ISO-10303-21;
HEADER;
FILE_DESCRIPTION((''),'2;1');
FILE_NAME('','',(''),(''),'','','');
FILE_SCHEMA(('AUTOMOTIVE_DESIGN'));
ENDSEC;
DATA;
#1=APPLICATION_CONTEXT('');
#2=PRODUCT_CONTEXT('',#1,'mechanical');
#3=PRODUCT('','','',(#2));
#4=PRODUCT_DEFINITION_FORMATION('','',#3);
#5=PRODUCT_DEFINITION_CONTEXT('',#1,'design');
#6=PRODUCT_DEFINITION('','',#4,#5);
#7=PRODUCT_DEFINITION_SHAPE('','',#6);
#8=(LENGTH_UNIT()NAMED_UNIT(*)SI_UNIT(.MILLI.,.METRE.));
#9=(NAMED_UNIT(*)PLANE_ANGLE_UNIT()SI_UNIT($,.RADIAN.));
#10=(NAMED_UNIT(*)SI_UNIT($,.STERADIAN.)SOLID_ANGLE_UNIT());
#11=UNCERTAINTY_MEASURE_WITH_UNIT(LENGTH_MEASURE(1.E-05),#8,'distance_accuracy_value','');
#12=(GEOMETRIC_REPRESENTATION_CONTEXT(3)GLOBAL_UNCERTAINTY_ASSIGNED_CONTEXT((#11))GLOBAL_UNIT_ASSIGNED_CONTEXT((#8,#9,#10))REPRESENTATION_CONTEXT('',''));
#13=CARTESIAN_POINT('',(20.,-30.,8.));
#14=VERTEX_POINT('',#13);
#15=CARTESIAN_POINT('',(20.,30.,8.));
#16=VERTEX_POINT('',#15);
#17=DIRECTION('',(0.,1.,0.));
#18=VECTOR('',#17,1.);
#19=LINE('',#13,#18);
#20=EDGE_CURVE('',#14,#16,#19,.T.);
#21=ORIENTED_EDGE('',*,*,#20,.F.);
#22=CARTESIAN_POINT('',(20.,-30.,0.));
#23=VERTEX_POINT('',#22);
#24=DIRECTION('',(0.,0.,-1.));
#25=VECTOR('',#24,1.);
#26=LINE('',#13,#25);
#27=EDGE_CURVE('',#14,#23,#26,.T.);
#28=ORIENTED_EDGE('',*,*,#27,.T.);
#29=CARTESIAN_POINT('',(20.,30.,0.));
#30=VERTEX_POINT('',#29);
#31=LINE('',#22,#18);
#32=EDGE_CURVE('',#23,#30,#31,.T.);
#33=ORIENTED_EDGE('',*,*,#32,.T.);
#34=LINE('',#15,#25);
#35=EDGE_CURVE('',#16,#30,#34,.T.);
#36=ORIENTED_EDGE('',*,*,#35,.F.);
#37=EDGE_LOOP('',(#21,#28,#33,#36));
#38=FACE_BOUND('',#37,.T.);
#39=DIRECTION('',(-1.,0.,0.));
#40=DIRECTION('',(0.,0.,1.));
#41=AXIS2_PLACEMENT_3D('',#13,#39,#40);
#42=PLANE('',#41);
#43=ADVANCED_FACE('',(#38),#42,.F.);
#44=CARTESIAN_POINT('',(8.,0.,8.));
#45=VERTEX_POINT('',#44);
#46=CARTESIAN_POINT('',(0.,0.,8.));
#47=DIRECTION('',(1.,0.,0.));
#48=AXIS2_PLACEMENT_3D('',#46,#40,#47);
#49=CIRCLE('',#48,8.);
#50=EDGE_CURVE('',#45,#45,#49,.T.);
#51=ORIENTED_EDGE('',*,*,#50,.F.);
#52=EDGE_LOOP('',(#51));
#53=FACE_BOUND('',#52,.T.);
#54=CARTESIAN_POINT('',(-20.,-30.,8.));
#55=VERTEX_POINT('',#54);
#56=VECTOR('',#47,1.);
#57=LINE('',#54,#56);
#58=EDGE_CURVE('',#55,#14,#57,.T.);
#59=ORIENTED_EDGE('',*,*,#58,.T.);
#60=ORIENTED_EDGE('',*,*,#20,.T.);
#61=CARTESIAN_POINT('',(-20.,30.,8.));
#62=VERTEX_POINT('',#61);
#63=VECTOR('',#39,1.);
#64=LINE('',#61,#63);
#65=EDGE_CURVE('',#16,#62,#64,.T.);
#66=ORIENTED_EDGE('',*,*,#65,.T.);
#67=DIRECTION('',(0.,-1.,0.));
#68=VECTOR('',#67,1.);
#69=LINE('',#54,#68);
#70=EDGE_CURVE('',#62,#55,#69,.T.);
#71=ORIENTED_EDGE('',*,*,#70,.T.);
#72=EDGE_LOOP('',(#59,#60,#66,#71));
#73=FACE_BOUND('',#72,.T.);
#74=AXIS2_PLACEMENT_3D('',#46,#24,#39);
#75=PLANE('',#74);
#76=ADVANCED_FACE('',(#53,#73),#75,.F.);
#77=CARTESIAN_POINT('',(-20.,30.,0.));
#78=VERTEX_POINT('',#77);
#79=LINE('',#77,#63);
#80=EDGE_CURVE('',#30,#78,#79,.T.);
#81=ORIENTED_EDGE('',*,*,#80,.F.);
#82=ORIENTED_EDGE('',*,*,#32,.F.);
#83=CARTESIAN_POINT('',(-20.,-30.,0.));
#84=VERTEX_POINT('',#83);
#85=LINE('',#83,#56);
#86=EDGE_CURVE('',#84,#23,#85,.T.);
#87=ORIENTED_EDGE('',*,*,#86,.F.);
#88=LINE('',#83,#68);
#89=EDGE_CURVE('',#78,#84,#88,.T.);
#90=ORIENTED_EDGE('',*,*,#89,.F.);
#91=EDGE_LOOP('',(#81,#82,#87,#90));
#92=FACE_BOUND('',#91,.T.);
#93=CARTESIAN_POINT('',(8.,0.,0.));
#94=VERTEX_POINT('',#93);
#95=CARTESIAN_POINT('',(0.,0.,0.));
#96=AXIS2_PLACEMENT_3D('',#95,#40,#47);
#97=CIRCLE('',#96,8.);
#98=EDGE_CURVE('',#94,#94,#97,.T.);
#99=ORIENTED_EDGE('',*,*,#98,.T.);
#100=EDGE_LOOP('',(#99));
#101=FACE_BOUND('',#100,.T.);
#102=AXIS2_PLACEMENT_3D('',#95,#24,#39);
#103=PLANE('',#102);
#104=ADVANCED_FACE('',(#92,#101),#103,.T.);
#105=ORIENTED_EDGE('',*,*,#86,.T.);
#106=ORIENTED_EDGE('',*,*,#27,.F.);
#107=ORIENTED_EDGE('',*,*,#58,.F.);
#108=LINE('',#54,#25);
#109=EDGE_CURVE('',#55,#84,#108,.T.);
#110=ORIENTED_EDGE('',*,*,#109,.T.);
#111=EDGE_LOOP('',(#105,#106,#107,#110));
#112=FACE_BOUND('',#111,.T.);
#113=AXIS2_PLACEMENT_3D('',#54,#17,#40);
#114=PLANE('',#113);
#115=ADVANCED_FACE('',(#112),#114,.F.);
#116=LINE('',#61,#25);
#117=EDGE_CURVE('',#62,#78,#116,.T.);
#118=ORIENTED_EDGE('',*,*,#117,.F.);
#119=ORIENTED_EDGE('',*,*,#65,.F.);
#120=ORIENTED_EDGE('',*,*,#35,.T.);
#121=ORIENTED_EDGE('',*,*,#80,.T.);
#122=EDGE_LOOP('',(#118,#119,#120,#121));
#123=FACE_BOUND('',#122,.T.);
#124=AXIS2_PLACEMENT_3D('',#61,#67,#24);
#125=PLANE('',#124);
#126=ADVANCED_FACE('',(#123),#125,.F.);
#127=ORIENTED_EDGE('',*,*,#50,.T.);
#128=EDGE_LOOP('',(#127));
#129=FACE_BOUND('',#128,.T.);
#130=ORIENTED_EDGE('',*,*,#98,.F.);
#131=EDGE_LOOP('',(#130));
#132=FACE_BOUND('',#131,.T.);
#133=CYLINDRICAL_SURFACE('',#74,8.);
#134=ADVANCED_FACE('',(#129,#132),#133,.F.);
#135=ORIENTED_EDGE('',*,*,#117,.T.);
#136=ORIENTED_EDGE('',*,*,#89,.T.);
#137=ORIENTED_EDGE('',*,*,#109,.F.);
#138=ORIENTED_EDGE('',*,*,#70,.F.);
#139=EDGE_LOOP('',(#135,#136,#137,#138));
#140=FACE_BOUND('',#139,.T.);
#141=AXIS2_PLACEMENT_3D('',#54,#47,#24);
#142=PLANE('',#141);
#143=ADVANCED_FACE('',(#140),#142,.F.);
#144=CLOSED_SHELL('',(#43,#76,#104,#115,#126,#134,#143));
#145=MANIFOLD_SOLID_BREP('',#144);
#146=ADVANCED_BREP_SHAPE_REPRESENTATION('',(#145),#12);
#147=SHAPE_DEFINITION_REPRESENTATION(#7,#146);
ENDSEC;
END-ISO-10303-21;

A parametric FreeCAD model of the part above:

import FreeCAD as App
import Part
import Sketcher
from FreeCAD import Vector


def add_polygon(sketch, points):
    """Adds a closed chain of lines whose ends are joined by coincident constraints."""
    first, n = sketch.GeometryCount, len(points)
    for a, b in zip(points, points[1:] + points[:1]):
        sketch.addGeometry(Part.LineSegment(App.Vector(*a, 0), App.Vector(*b, 0)), False)
    for i in range(n):
        sketch.addConstraint(Sketcher.Constraint("Coincident", first + i, 2, first + (i + 1) % n, 1))

doc = App.newDocument("Part")
body = doc.addObject("PartDesign::Body", "Body")

sketch1 = doc.addObject("Sketcher::SketchObject", "Sketch")
body.addObject(sketch1)
sketch1.AttachmentSupport = (doc.XY_Plane, [""])
sketch1.MapMode = "FlatFace"
add_polygon(sketch1, [(-20, 30), (-20, -30), (20, -30), (20, 30)])
sketch1.addGeometry(Part.Circle(Vector(0, 0, 0), Vector(0, 0, 1), 8), False)
sketch1.addConstraint(Sketcher.Constraint("Vertical", 0))
sketch1.addConstraint(Sketcher.Constraint("Horizontal", 1))
sketch1.addConstraint(Sketcher.Constraint("Vertical", 2))
sketch1.addConstraint(Sketcher.Constraint("Horizontal", 3))
sketch1.addConstraint(Sketcher.Constraint("Coincident", 4, 3, -1, 1))
sketch1.addConstraint(Sketcher.Constraint("Symmetric", 0, 2, 2, 2, -1, 1))
sketch1.addConstraint(Sketcher.Constraint("Diameter", 4, 16.0))
sketch1.addConstraint(Sketcher.Constraint("DistanceX", 1, 1, 1, 2, 40.0))
sketch1.addConstraint(Sketcher.Constraint("DistanceY", 0, 2, 0, 1, 60.0))
pad1 = doc.addObject("PartDesign::Pad", "Pad")
body.addObject(pad1)
pad1.Profile = sketch1
pad1.Length = 8

doc.recompute()
